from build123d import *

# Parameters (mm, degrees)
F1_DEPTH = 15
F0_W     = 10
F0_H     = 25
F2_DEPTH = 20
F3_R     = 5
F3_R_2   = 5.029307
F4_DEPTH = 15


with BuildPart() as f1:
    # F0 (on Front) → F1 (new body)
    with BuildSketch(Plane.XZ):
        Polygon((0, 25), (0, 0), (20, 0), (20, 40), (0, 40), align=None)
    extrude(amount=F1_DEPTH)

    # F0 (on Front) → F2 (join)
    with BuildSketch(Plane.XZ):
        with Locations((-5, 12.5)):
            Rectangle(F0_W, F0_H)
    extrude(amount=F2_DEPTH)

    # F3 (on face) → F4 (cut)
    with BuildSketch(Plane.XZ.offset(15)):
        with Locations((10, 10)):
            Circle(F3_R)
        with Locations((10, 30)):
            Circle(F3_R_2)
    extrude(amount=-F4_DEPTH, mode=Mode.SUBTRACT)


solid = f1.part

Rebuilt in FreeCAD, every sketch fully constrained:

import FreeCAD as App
import Part
import Sketcher

V = App.Vector


def add_polygon(sketch, points):
    """Adds a closed chain of lines whose ends are joined by coincident constraints."""
    first, n = sketch.GeometryCount, len(points)
    for a, b in zip(points, points[1:] + points[:1]):
        sketch.addGeometry(Part.LineSegment(App.Vector(*a, 0), App.Vector(*b, 0)), False)
    for i in range(n):
        sketch.addConstraint(Sketcher.Constraint("Coincident", first + i, 2, first + (i + 1) % n, 1))

doc = App.newDocument("Part")
params = doc.addObject("Spreadsheet::Sheet", "Params")
for row, (alias, value) in enumerate([
    ("sketch1_width", "20 mm"),
    ("sketch1_height", "40 mm"),
    ("pad1_length", "15 mm"),
    ("sketch2_width", "10 mm"),
    ("sketch2_height", "25 mm"),
    ("pad2_length", "20 mm"),
    ("sketch3_diameter", "10 mm"),
    ("pocket1_length", "15 mm"),
], start=1):
    params.set(f"A{row}", alias)
    params.set(f"B{row}", "=" + value)
    params.setAlias(f"B{row}", alias)

body = doc.addObject("PartDesign::Body", "Body")

sketch1 = body.newObject("Sketcher::SketchObject", "Sketch")
sketch1.AttachmentSupport = (doc.getObject("XZ_Plane"), [""])
sketch1.MapMode = "FlatFace"
add_polygon(sketch1, [(0, 0), (20, 0), (20, 40), (0, 40)])
sketch1.addConstraint([
    Sketcher.Constraint("Horizontal", 0),
    Sketcher.Constraint("Vertical", 1),
    Sketcher.Constraint("Horizontal", 2),
    Sketcher.Constraint("Vertical", 3),
    Sketcher.Constraint("Coincident", 3, 2, -1, 1),
    Sketcher.Constraint("DistanceX", 0, 1, 0, 2, 20.0),
    Sketcher.Constraint("DistanceY", 1, 1, 1, 2, 40.0),
])
sketch1.setExpression("Constraints[9]", "Params.sketch1_width")
sketch1.setExpression("Constraints[10]", "Params.sketch1_height")
pad1 = body.newObject("PartDesign::Pad", "Pad")
pad1.Profile = sketch1
pad1.setExpression("Length", "Params.pad1_length")

sketch2 = body.newObject("Sketcher::SketchObject", "Sketch001")
sketch2.AttachmentSupport = (doc.getObject("XZ_Plane"), [""])
sketch2.MapMode = "FlatFace"
add_polygon(sketch2, [(-10, 25), (-10, 0), (0, 0), (0, 25)])
sketch2.addConstraint([
    Sketcher.Constraint("Vertical", 0),
    Sketcher.Constraint("Horizontal", 1),
    Sketcher.Constraint("Vertical", 2),
    Sketcher.Constraint("Horizontal", 3),
    Sketcher.Constraint("Coincident", 1, 2, -1, 1),
    Sketcher.Constraint("DistanceX", 1, 1, 1, 2, 10.0),
    Sketcher.Constraint("DistanceY", 0, 2, 0, 1, 25.0),
])
sketch2.setExpression("Constraints[9]", "Params.sketch2_width")
sketch2.setExpression("Constraints[10]", "Params.sketch2_height")
pad2 = body.newObject("PartDesign::Pad", "Pad001")
pad2.Profile = sketch2
pad2.setExpression("Length", "Params.pad2_length")

sketch3 = body.newObject("Sketcher::SketchObject", "Sketch002")
sketch3.AttachmentSupport = (doc.getObject("XZ_Plane"), [""])
sketch3.MapMode = "FlatFace"
sketch3.AttachmentOffset = App.Placement(V(0, 0, 15), App.Rotation())
sketch3.addGeometry([
    Part.Circle(V(10, 10, 0), V(0, 0, 1), 5),
    Part.Circle(V(10, 30, 0), V(0, 0, 1), 5),
], False)
sketch3.addConstraint([
    Sketcher.Constraint("Vertical", 0, 3, 1, 3),
    Sketcher.Constraint("Diameter", 0, 10.0),
    Sketcher.Constraint("DistanceX", -1, 1, 0, 3, 10.0),
    Sketcher.Constraint("DistanceY", -1, 1, 0, 3, 10.0),
    Sketcher.Constraint("DistanceY", -1, 1, 1, 3, 30.0),
    Sketcher.Constraint("Diameter", 1, 10.058614),
])
sketch3.setExpression("Constraints[1]", "Params.sketch3_diameter")
pocket1 = body.newObject("PartDesign::Pocket", "Pocket")
pocket1.Profile = sketch3
pocket1.setExpression("Length", "Params.pocket1_length")

doc.recompute()
